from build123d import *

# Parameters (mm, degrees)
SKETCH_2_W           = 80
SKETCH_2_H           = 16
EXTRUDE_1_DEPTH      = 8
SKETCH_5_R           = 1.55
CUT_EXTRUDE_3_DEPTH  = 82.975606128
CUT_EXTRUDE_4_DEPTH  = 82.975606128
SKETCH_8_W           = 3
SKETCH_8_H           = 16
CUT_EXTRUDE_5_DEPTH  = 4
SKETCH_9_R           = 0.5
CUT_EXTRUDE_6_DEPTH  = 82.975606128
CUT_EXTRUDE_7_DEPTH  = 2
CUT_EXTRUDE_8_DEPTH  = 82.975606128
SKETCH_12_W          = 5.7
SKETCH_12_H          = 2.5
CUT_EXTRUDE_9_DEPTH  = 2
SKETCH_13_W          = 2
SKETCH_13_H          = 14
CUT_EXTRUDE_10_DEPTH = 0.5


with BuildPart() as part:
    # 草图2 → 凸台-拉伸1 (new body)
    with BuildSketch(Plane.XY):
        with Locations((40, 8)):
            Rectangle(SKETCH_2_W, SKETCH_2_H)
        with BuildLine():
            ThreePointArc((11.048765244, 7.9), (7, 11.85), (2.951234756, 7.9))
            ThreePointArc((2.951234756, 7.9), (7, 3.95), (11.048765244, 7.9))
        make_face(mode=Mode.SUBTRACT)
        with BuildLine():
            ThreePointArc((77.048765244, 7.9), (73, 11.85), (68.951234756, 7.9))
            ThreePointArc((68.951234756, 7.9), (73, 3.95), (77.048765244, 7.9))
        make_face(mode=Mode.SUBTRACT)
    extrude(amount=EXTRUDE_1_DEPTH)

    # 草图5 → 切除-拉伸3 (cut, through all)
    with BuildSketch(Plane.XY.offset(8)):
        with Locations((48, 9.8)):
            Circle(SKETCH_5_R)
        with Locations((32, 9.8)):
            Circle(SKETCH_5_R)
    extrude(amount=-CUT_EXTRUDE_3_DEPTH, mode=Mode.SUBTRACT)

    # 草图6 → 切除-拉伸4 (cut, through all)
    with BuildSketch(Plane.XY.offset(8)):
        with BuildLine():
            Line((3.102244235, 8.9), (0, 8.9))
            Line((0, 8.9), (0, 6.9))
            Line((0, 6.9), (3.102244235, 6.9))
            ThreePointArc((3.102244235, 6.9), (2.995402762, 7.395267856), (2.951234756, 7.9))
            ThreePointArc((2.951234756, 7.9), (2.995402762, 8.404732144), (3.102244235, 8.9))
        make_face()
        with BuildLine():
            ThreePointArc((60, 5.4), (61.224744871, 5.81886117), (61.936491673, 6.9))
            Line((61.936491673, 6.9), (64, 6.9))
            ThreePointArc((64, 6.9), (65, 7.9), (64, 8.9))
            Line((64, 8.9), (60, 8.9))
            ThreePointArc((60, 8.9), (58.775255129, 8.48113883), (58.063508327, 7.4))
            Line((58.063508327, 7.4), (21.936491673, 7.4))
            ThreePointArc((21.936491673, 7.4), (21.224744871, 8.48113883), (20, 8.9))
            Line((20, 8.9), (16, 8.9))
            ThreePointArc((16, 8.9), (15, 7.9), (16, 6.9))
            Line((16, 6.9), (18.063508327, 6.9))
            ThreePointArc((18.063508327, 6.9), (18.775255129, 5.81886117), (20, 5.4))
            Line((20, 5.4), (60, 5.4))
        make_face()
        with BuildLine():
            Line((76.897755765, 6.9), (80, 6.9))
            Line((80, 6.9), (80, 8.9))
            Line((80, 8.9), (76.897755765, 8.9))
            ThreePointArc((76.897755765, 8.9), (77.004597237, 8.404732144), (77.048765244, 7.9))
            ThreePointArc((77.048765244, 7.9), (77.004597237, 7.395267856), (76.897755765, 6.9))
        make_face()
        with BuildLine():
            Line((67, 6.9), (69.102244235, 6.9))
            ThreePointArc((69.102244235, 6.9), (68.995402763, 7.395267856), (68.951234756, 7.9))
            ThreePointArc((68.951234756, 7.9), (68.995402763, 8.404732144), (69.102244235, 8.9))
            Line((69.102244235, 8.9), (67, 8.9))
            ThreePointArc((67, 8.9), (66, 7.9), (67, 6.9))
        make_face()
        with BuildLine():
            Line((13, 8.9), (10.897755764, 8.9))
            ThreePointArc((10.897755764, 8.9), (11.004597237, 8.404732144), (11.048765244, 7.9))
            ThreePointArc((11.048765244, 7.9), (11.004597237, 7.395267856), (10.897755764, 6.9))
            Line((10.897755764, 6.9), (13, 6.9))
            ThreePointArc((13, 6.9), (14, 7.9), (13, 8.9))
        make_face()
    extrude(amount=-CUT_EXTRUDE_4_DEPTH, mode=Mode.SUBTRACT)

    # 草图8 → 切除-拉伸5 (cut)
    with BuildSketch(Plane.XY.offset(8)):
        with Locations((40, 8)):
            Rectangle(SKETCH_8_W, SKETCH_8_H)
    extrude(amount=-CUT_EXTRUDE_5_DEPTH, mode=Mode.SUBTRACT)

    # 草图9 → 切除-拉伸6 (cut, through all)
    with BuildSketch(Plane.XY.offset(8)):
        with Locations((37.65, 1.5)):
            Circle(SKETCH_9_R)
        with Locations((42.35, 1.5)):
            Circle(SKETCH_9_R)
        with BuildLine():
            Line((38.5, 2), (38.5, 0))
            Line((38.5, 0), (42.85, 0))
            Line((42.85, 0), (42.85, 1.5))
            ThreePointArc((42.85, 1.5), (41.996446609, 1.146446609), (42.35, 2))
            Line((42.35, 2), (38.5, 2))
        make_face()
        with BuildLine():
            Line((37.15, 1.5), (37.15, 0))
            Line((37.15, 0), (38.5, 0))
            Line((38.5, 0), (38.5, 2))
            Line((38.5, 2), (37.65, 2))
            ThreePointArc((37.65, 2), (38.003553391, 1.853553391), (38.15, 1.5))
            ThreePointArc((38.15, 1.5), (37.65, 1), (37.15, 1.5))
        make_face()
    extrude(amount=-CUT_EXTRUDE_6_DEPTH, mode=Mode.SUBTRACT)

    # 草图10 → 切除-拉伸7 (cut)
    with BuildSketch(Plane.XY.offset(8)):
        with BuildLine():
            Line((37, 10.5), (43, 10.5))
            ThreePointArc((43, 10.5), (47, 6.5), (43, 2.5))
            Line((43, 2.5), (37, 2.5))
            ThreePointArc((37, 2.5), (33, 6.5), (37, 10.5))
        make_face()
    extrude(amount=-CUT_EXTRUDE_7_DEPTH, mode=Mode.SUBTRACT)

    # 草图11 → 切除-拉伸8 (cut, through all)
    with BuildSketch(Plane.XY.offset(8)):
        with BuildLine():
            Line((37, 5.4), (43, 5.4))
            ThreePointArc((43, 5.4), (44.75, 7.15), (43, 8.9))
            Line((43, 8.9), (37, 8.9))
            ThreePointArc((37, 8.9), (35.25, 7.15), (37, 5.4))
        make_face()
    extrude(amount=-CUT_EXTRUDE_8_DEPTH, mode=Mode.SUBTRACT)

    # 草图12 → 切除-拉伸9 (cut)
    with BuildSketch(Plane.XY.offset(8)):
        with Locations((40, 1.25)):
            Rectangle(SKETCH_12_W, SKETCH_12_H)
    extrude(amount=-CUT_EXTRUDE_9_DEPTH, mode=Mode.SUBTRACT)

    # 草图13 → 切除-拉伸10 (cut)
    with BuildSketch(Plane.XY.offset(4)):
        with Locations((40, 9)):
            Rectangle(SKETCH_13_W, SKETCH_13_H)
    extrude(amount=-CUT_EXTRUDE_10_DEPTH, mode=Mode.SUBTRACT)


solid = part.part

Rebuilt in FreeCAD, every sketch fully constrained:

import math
import FreeCAD as App
import Part
import Sketcher
from FreeCAD import Vector

doc = App.newDocument("Part")
params = doc.addObject("Spreadsheet::Sheet", "Params")
for row, (alias, value) in enumerate([
    ("sketch1_width", "80 mm"),
    ("sketch1_height", "16 mm"),
    ("sketch1_radius", "4.05 mm"),
    ("pad1_length", "8 mm"),
    ("sketch2_diameter", "3.1 mm"),
    ("sketch3_radius", "2 mm"),
    ("sketch3_width", "4 mm"),
    ("sketch3_width2", "40 mm"),
    ("sketch3_radius2", "4.05 mm"),
    ("sketch4_width", "3 mm"),
    ("sketch4_height", "16 mm"),
    ("pocket3_length", "4 mm"),
    ("sketch5_radius", "0.5 mm"),
    ("sketch5_width", "5.7 mm"),
    ("sketch5_height", "1.5 mm"),
    ("sketch6_radius", "4 mm"),
    ("sketch6_width", "6 mm"),
    ("pocket5_length", "2 mm"),
    ("sketch7_width", "6 mm"),
    ("sketch7_radius", "1.75 mm"),
    ("sketch8_width", "5.7 mm"),
    ("sketch8_height", "2.5 mm"),
    ("pocket7_length", "2 mm"),
    ("sketch9_width", "2 mm"),
    ("sketch9_height", "14 mm"),
    ("pocket8_length", "0.5 mm"),
], start=1):
    params.set(f"A{row}", alias)
    params.set(f"B{row}", "=" + value)
    params.setAlias(f"B{row}", alias)

body = doc.addObject("PartDesign::Body", "Body")

sketch1 = body.newObject("Sketcher::SketchObject", "Sketch")
sketch1.AttachmentSupport = (doc.getObject("XY_Plane"), [""])
sketch1.MapMode = "FlatFace"
sketch1.addGeometry([
    Part.LineSegment(Vector(0, 16, 0), Vector(0, 0, 0)),
    Part.LineSegment(Vector(0, 0, 0), Vector(80, 0, 0)),
    Part.LineSegment(Vector(80, 0, 0), Vector(80, 16, 0)),
    Part.LineSegment(Vector(80, 16, 0), Vector(0, 16, 0)),
    Part.ArcOfCircle(Part.Circle(Vector(7, 7.8, 0), Vector(0, 0, 1), 4), math.radians(1), math.radians(179)),
    Part.ArcOfCircle(Part.Circle(Vector(7, 8, 0), Vector(0, 0, 1), 4), math.radians(-179), math.radians(-1)),
    Part.ArcOfCircle(Part.Circle(Vector(73, 7.8, 0), Vector(0, 0, 1), 4), math.radians(1), math.radians(179)),
    Part.ArcOfCircle(Part.Circle(Vector(73, 8, 0), Vector(0, 0, 1), 4), math.radians(-179), math.radians(-1)),
], False)
sketch1.addConstraint([
    Sketcher.Constraint("Coincident", 0, 2, 1, 1),
    Sketcher.Constraint("Coincident", 1, 2, 2, 1),
    Sketcher.Constraint("Coincident", 2, 2, 3, 1),
    Sketcher.Constraint("Coincident", 3, 2, 0, 1),
    Sketcher.Constraint("Coincident", 4, 1, 5, 2),
    Sketcher.Constraint("Coincident", 5, 1, 4, 2),
    Sketcher.Constraint("Coincident", 6, 1, 7, 2),
    Sketcher.Constraint("Coincident", 7, 1, 6, 2),
    Sketcher.Constraint("Vertical", 0),
    Sketcher.Constraint("Horizontal", 1),
    Sketcher.Constraint("Vertical", 2),
    Sketcher.Constraint("Horizontal", 3),
    Sketcher.Constraint("Coincident", 0, 2, -1, 1),
    Sketcher.Constraint("Equal", 4, 5),
    Sketcher.Constraint("Equal", 5, 6),
    Sketcher.Constraint("Equal", 6, 7),
    Sketcher.Constraint("Horizontal", 4, 3, 6, 3),
    Sketcher.Constraint("Horizontal", 5, 3, 7, 3),
    Sketcher.Constraint("Horizontal", 4, 1, 5, 1),
    Sketcher.Constraint("Horizontal", 5, 1, 6, 1),
    Sketcher.Constraint("DistanceX", 1, 1, 1, 2, 80.0),
    Sketcher.Constraint("DistanceY", 0, 2, 0, 1, 16.0),
    Sketcher.Constraint("Radius", 4, 4.05),
    Sketcher.Constraint("DistanceX", -1, 1, 4, 3, 7.0),
    Sketcher.Constraint("DistanceY", -1, 1, 5, 3, 8.0),
    Sketcher.Constraint("DistanceX", -1, 1, 6, 3, 73.0),
    Sketcher.Constraint("DistanceY", -1, 1, 4, 3, 7.8),
])
sketch1.setExpression("Constraints[20]", "Params.sketch1_width")
sketch1.setExpression("Constraints[21]", "Params.sketch1_height")
sketch1.setExpression("Constraints[22]", "Params.sketch1_radius")
pad1 = body.newObject("PartDesign::Pad", "Pad")
pad1.Profile = sketch1
pad1.setExpression("Length", "Params.pad1_length")

sketch2 = body.newObject("Sketcher::SketchObject", "Sketch001")
sketch2.AttachmentSupport = (doc.getObject("XY_Plane"), [""])
sketch2.MapMode = "FlatFace"
sketch2.AttachmentOffset = App.Placement(Vector(0, 0, 8), App.Rotation())
sketch2.addGeometry([
    Part.Circle(Vector(48, 9.8, 0), Vector(0, 0, 1), 1.6),
    Part.Circle(Vector(32, 9.8, 0), Vector(0, 0, 1), 1.6),
], False)
sketch2.addConstraint([
    Sketcher.Constraint("Equal", 0, 1),
    Sketcher.Constraint("Horizontal", 0, 3, 1, 3),
    Sketcher.Constraint("Diameter", 0, 3.1),
    Sketcher.Constraint("DistanceX", -1, 1, 0, 3, 48.0),
    Sketcher.Constraint("DistanceX", -1, 1, 1, 3, 32.0),
    Sketcher.Constraint("DistanceY", -1, 1, 0, 3, 9.8),
])
sketch2.setExpression("Constraints[2]", "Params.sketch2_diameter")
pocket1 = body.newObject("PartDesign::Pocket", "Pocket")
pocket1.Profile = sketch2
pocket1.Type = "ThroughAll"

sketch3 = body.newObject("Sketcher::SketchObject", "Sketch002")
sketch3.AttachmentSupport = (doc.getObject("XY_Plane"), [""])
sketch3.MapMode = "FlatFace"
sketch3.AttachmentOffset = App.Placement(Vector(0, 0, 8), App.Rotation())
sketch3.addGeometry([
    Part.LineSegment(Vector(3.1, 8.9, 0), Vector(0, 8.9, 0)),
    Part.LineSegment(Vector(0, 8.9, 0), Vector(0, 6.9, 0)),
    Part.LineSegment(Vector(0, 6.9, 0), Vector(3.1, 6.9, 0)),
    Part.ArcOfCircle(Part.Circle(Vector(7, 8, 0), Vector(0, 0, 1), 4), math.radians(-178.59), math.radians(-164.24)),
    Part.ArcOfCircle(Part.Circle(Vector(7, 7.8, 0), Vector(0, 0, 1), 4), math.radians(164.24), math.radians(178.59)),
    Part.ArcOfCircle(Part.Circle(Vector(60, 7.4, 0), Vector(0, 0, 1), 2), math.radians(-90), math.radians(-14)),
    Part.LineSegment(Vector(61.9, 6.9, 0), Vector(64, 6.9, 0)),
    Part.ArcOfCircle(Part.Circle(Vector(64, 7.9, 0), Vector(0, 0, 1), 1), math.radians(-90), math.radians(90)),
    Part.LineSegment(Vector(64, 8.9, 0), Vector(60, 8.9, 0)),
    Part.ArcOfCircle(Part.Circle(Vector(60, 6.9, 0), Vector(0, 0, 1), 2), math.radians(90), math.radians(166)),
    Part.LineSegment(Vector(58.1, 7.4, 0), Vector(21.9, 7.4, 0)),
    Part.ArcOfCircle(Part.Circle(Vector(20, 6.9, 0), Vector(0, 0, 1), 2), math.radians(14), math.radians(90)),
    Part.LineSegment(Vector(20, 8.9, 0), Vector(16, 8.9, 0)),
    Part.ArcOfCircle(Part.Circle(Vector(16, 7.9, 0), Vector(0, 0, 1), 1), math.radians(90), math.radians(270)),
    Part.LineSegment(Vector(16, 6.9, 0), Vector(18.1, 6.9, 0)),
    Part.ArcOfCircle(Part.Circle(Vector(20, 7.4, 0), Vector(0, 0, 1), 2), math.radians(-166), math.radians(-90)),
    Part.LineSegment(Vector(20, 5.4, 0), Vector(60, 5.4, 0)),
    Part.LineSegment(Vector(76.9, 6.9, 0), Vector(80, 6.9, 0)),
    Part.LineSegment(Vector(80, 6.9, 0), Vector(80, 8.9, 0)),
    Part.LineSegment(Vector(80, 8.9, 0), Vector(76.9, 8.9, 0)),
    Part.ArcOfCircle(Part.Circle(Vector(73, 7.8, 0), Vector(0, 0, 1), 4.1), math.radians(1.41), math.radians(15.76)),
    Part.ArcOfCircle(Part.Circle(Vector(73, 8, 0), Vector(0, 0, 1), 4.1), math.radians(-15.76), math.radians(-1.41)),
    Part.LineSegment(Vector(67, 6.9, 0), Vector(69.1, 6.9, 0)),
    Part.ArcOfCircle(Part.Circle(Vector(73, 8, 0), Vector(0, 0, 1), 4.1), math.radians(-178.59), math.radians(-164.24)),
    Part.ArcOfCircle(Part.Circle(Vector(73, 7.8, 0), Vector(0, 0, 1), 4.1), math.radians(164.24), math.radians(178.59)),
    Part.LineSegment(Vector(69.1, 8.9, 0), Vector(67, 8.9, 0)),
    Part.ArcOfCircle(Part.Circle(Vector(67, 7.9, 0), Vector(0, 0, 1), 1), math.radians(90), math.radians(270)),
    Part.LineSegment(Vector(13, 8.9, 0), Vector(10.9, 8.9, 0)),
    Part.ArcOfCircle(Part.Circle(Vector(7, 7.8, 0), Vector(0, 0, 1), 4.1), math.radians(1.41), math.radians(15.76)),
    Part.ArcOfCircle(Part.Circle(Vector(7, 8, 0), Vector(0, 0, 1), 4.1), math.radians(-15.76), math.radians(-1.41)),
    Part.LineSegment(Vector(10.9, 6.9, 0), Vector(13, 6.9, 0)),
    Part.ArcOfCircle(Part.Circle(Vector(13, 7.9, 0), Vector(0, 0, 1), 1), math.radians(-90), math.radians(90)),
], False)
sketch3.addConstraint([
    Sketcher.Constraint("Coincident", 0, 2, 1, 1),
    Sketcher.Constraint("Coincident", 1, 2, 2, 1),
    Sketcher.Constraint("Coincident", 2, 2, 3, 2),
    Sketcher.Constraint("Coincident", 3, 1, 4, 2),
    Sketcher.Constraint("Coincident", 4, 1, 0, 1),
    Sketcher.Constraint("Coincident", 5, 2, 6, 1),
    Sketcher.Constraint("Tangent", 6, 2, 7, 1),
    Sketcher.Constraint("Tangent", 7, 2, 8, 1),
    Sketcher.Constraint("Tangent", 8, 2, 9, 1),
    Sketcher.Constraint("Coincident", 9, 2, 10, 1),
    Sketcher.Constraint("Coincident", 10, 2, 11, 1),
    Sketcher.Constraint("Tangent", 11, 2, 12, 1),
    Sketcher.Constraint("Tangent", 12, 2, 13, 1),
    Sketcher.Constraint("Tangent", 13, 2, 14, 1),
    Sketcher.Constraint("Coincident", 14, 2, 15, 1),
    Sketcher.Constraint("Tangent", 15, 2, 16, 1),
    Sketcher.Constraint("Tangent", 16, 2, 5, 1),
    Sketcher.Constraint("Coincident", 17, 2, 18, 1),
    Sketcher.Constraint("Coincident", 18, 2, 19, 1),
    Sketcher.Constraint("Coincident", 19, 2, 20, 2),
    Sketcher.Constraint("Coincident", 20, 1, 21, 2),
    Sketcher.Constraint("Coincident", 21, 1, 17, 1),
    Sketcher.Constraint("Coincident", 22, 2, 23, 2),
    Sketcher.Constraint("Coincident", 23, 1, 24, 2),
    Sketcher.Constraint("Coincident", 24, 1, 25, 1),
    Sketcher.Constraint("Tangent", 25, 2, 26, 1),
    Sketcher.Constraint("Tangent", 26, 2, 22, 1),
    Sketcher.Constraint("Coincident", 27, 2, 28, 2),
    Sketcher.Constraint("Coincident", 28, 1, 29, 2),
    Sketcher.Constraint("Coincident", 29, 1, 30, 1),
    Sketcher.Constraint("Tangent", 30, 2, 31, 1),
    Sketcher.Constraint("Tangent", 31, 2, 27, 1),
    Sketcher.Constraint("Horizontal", 0),
    Sketcher.Constraint("Vertical", 1),
    Sketcher.Constraint("Horizontal", 2),
    Sketcher.Constraint("Horizontal", 6),
    Sketcher.Constraint("Horizontal", 8),
    Sketcher.Constraint("Horizontal", 10),
    Sketcher.Constraint("Horizontal", 12),
    Sketcher.Constraint("Horizontal", 14),
    Sketcher.Constraint("Horizontal", 16),
    Sketcher.Constraint("Horizontal", 17),
    Sketcher.Constraint("Vertical", 18),
    Sketcher.Constraint("Horizontal", 19),
    Sketcher.Constraint("Horizontal", 22),
    Sketcher.Constraint("Horizontal", 25),
    Sketcher.Constraint("Horizontal", 27),
    Sketcher.Constraint("Horizontal", 30),
    Sketcher.Constraint("Coincident", 23, 3, 21, 3),
    Sketcher.Constraint("Coincident", 24, 3, 20, 3),
    Sketcher.Constraint("Coincident", 28, 3, 4, 3),
    Sketcher.Constraint("Coincident", 29, 3, 3, 3),
    Sketcher.Constraint("Equal", 3, 4),
    Sketcher.Constraint("Equal", 5, 9),
    Sketcher.Constraint("Equal", 9, 11),
    Sketcher.Constraint("Equal", 7, 13),
    Sketcher.Constraint("Equal", 11, 15),
    Sketcher.Constraint("Equal", 4, 20),
    Sketcher.Constraint("Equal", 20, 21),
    Sketcher.Constraint("Equal", 21, 23),
    Sketcher.Constraint("Equal", 23, 24),
    Sketcher.Constraint("Equal", 13, 26),
    Sketcher.Constraint("Equal", 24, 28),
    Sketcher.Constraint("Equal", 28, 29),
    Sketcher.Constraint("Equal", 26, 31),
    Sketcher.Constraint("PointOnObject", 0, 2, -2),
    Sketcher.Constraint("Horizontal", 9, 3, 11, 3),
    Sketcher.Constraint("Horizontal", 4, 3, 20, 3),
    Sketcher.Constraint("Horizontal", 3, 3, 21, 3),
    Sketcher.Constraint("Horizontal", 13, 3, 26, 3),
    Sketcher.Constraint("Horizontal", 26, 3, 31, 3),
    Sketcher.Constraint("Horizontal", 11, 3, 1, 2),
    Sketcher.Constraint("Horizontal", 31, 3, 3, 1),
    Sketcher.Constraint("Horizontal", 2, 2, 5, 2),
    Sketcher.Constraint("Horizontal", 4, 1, 7, 2),
    Sketcher.Constraint("Horizontal", 15, 3, 9, 2),
    Sketcher.Constraint("Horizontal", 14, 2, 17, 2),
    Sketcher.Constraint("Horizontal", 12, 2, 18, 2),
    Sketcher.Constraint("Horizontal", 3, 1, 20, 1),
    Sketcher.Constraint("Horizontal", 20, 1, 23, 1),
    Sketcher.Constraint("Vertical", 5, 3, 9, 3),
    Sketcher.Constraint("Vertical", 11, 3, 15, 3),
    Sketcher.Constraint("Equal", 8, 12),
    Sketcher.Constraint("Equal", 2, 17),
    Sketcher.Constraint("Equal", 25, 27),
    Sketcher.Constraint("Radius", 5, 2.0),
    Sketcher.Constraint("DistanceX", 8, 2, 8, 1, 4.0),
    Sketcher.Constraint("DistanceX", 16, 1, 16, 2, 40.0),
    Sketcher.Constraint("Radius", 3, 4.05),
    Sketcher.Constraint("DistanceX", -1, 1, 3, 3, 7.0),
    Sketcher.Constraint("DistanceY", -1, 1, 3, 3, 8.0),
    Sketcher.Constraint("DistanceX", -1, 1, 5, 3, 60.0),
    Sketcher.Constraint("DistanceX", -1, 1, 20, 3, 73.0),
    Sketcher.Constraint("DistanceX", -1, 1, 26, 3, 67.0),
    Sketcher.Constraint("DistanceY", -1, 1, 4, 3, 7.8),
    Sketcher.Constraint("DistanceY", -1, 1, 5, 3, 7.4),
])
sketch3.setExpression("Constraints[85]", "Params.sketch3_radius")
sketch3.setExpression("Constraints[86]", "Params.sketch3_width")
sketch3.setExpression("Constraints[87]", "Params.sketch3_width2")
sketch3.setExpression("Constraints[88]", "Params.sketch3_radius2")
pocket2 = body.newObject("PartDesign::Pocket", "Pocket001")
pocket2.Profile = sketch3
pocket2.Type = "ThroughAll"

sketch4 = body.newObject("Sketcher::SketchObject", "Sketch003")
sketch4.AttachmentSupport = (doc.getObject("XY_Plane"), [""])
sketch4.MapMode = "FlatFace"
sketch4.AttachmentOffset = App.Placement(Vector(0, 0, 8), App.Rotation())
sketch4.addGeometry([
    Part.LineSegment(Vector(38.5, 16, 0), Vector(38.5, 0, 0)),
    Part.LineSegment(Vector(38.5, 0, 0), Vector(41.5, 0, 0)),
    Part.LineSegment(Vector(41.5, 0, 0), Vector(41.5, 16, 0)),
    Part.LineSegment(Vector(41.5, 16, 0), Vector(38.5, 16, 0)),
], False)
sketch4.addConstraint([
    Sketcher.Constraint("Coincident", 0, 2, 1, 1),
    Sketcher.Constraint("Coincident", 1, 2, 2, 1),
    Sketcher.Constraint("Coincident", 2, 2, 3, 1),
    Sketcher.Constraint("Coincident", 3, 2, 0, 1),
    Sketcher.Constraint("Vertical", 0),
    Sketcher.Constraint("Horizontal", 1),
    Sketcher.Constraint("Vertical", 2),
    Sketcher.Constraint("Horizontal", 3),
    Sketcher.Constraint("PointOnObject", 0, 2, -1),
    Sketcher.Constraint("DistanceX", 1, 1, 1, 2, 3.0),
    Sketcher.Constraint("DistanceY", 0, 2, 0, 1, 16.0),
    Sketcher.Constraint("DistanceX", -1, 1, 0, 2, 38.5),
])
sketch4.setExpression("Constraints[9]", "Params.sketch4_width")
sketch4.setExpression("Constraints[10]", "Params.sketch4_height")
pocket3 = body.newObject("PartDesign::Pocket", "Pocket002")
pocket3.Profile = sketch4
pocket3.setExpression("Length", "Params.pocket3_length")

sketch5 = body.newObject("Sketcher::SketchObject", "Sketch004")
sketch5.AttachmentSupport = (doc.getObject("XY_Plane"), [""])
sketch5.MapMode = "FlatFace"
sketch5.AttachmentOffset = App.Placement(Vector(0, 0, 8), App.Rotation())
sketch5.addGeometry([
    Part.ArcOfCircle(Part.Circle(Vector(37.6, 1.5, 0), Vector(0, 0, 1), 0.5), math.radians(90), math.radians(180)),
    Part.LineSegment(Vector(37.1, 1.5, 0), Vector(37.1, 0, 0)),
    Part.LineSegment(Vector(37.1, 0, 0), Vector(42.9, 0, 0)),
    Part.LineSegment(Vector(42.9, 0, 0), Vector(42.9, 1.5, 0)),
    Part.ArcOfCircle(Part.Circle(Vector(42.4, 1.5, 0), Vector(0, 0, 1), 0.5), math.radians(0), math.radians(90)),
    Part.LineSegment(Vector(42.4, 2, 0), Vector(37.6, 2, 0)),
], False)
sketch5.addConstraint([
    Sketcher.Constraint("Tangent", 0, 2, 1, 1),
    Sketcher.Constraint("Coincident", 1, 2, 2, 1),
    Sketcher.Constraint("Coincident", 2, 2, 3, 1),
    Sketcher.Constraint("Tangent", 3, 2, 4, 1),
    Sketcher.Constraint("Tangent", 4, 2, 5, 1),
    Sketcher.Constraint("Tangent", 5, 2, 0, 1),
    Sketcher.Constraint("Vertical", 1),
    Sketcher.Constraint("Horizontal", 2),
    Sketcher.Constraint("Vertical", 3),
    Sketcher.Constraint("Horizontal", 5),
    Sketcher.Constraint("Equal", 0, 4),
    Sketcher.Constraint("PointOnObject", 1, 2, -1),
    Sketcher.Constraint("Radius", 0, 0.5),
    Sketcher.Constraint("DistanceX", 2, 1, 2, 2, 5.7),
    Sketcher.Constraint("DistanceY", 1, 2, 1, 1, 1.5),
    Sketcher.Constraint("DistanceX", -1, 1, 0, 3, 37.65),
])
sketch5.setExpression("Constraints[12]", "Params.sketch5_radius")
sketch5.setExpression("Constraints[13]", "Params.sketch5_width")
sketch5.setExpression("Constraints[14]", "Params.sketch5_height")
pocket4 = body.newObject("PartDesign::Pocket", "Pocket003")
pocket4.Profile = sketch5
pocket4.Type = "ThroughAll"

sketch6 = body.newObject("Sketcher::SketchObject", "Sketch005")
sketch6.AttachmentSupport = (doc.getObject("XY_Plane"), [""])
sketch6.MapMode = "FlatFace"
sketch6.AttachmentOffset = App.Placement(Vector(0, 0, 8), App.Rotation())
sketch6.addGeometry([
    Part.LineSegment(Vector(43, 10.5, 0), Vector(37, 10.5, 0)),
    Part.ArcOfCircle(Part.Circle(Vector(37, 6.5, 0), Vector(0, 0, 1), 4), math.radians(90), math.radians(270)),
    Part.LineSegment(Vector(37, 2.5, 0), Vector(43, 2.5, 0)),
    Part.ArcOfCircle(Part.Circle(Vector(43, 6.5, 0), Vector(0, 0, 1), 4), math.radians(-90), math.radians(90)),
], False)
sketch6.addConstraint([
    Sketcher.Constraint("Tangent", 0, 2, 1, 1),
    Sketcher.Constraint("Tangent", 1, 2, 2, 1),
    Sketcher.Constraint("Tangent", 2, 2, 3, 1),
    Sketcher.Constraint("Tangent", 3, 2, 0, 1),
    Sketcher.Constraint("Horizontal", 0),
    Sketcher.Constraint("Horizontal", 2),
    Sketcher.Constraint("Radius", 1, 4.0),
    Sketcher.Constraint("DistanceX", 0, 2, 0, 1, 6.0),
    Sketcher.Constraint("DistanceX", -1, 1, 1, 3, 37.0),
    Sketcher.Constraint("DistanceY", -1, 1, 1, 3, 6.5),
])
sketch6.setExpression("Constraints[6]", "Params.sketch6_radius")
sketch6.setExpression("Constraints[7]", "Params.sketch6_width")
pocket5 = body.newObject("PartDesign::Pocket", "Pocket004")
pocket5.Profile = sketch6
pocket5.setExpression("Length", "Params.pocket5_length")

sketch7 = body.newObject("Sketcher::SketchObject", "Sketch006")
sketch7.AttachmentSupport = (doc.getObject("XY_Plane"), [""])
sketch7.MapMode = "FlatFace"
sketch7.AttachmentOffset = App.Placement(Vector(0, 0, 8), App.Rotation())
sketch7.addGeometry([
    Part.LineSegment(Vector(37, 5.4, 0), Vector(43, 5.4, 0)),
    Part.ArcOfCircle(Part.Circle(Vector(43, 7.2, 0), Vector(0, 0, 1), 1.8), math.radians(-90), math.radians(90)),
    Part.LineSegment(Vector(43, 8.9, 0), Vector(37, 8.9, 0)),
    Part.ArcOfCircle(Part.Circle(Vector(37, 7.2, 0), Vector(0, 0, 1), 1.8), math.radians(90), math.radians(270)),
], False)
sketch7.addConstraint([
    Sketcher.Constraint("Tangent", 0, 2, 1, 1),
    Sketcher.Constraint("Tangent", 1, 2, 2, 1),
    Sketcher.Constraint("Tangent", 2, 2, 3, 1),
    Sketcher.Constraint("Tangent", 3, 2, 0, 1),
    Sketcher.Constraint("Horizontal", 0),
    Sketcher.Constraint("Horizontal", 2),
    Sketcher.Constraint("DistanceX", 0, 1, 0, 2, 6.0),
    Sketcher.Constraint("Radius", 1, 1.75),
    Sketcher.Constraint("DistanceX", -1, 1, 1, 3, 43.0),
    Sketcher.Constraint("DistanceY", -1, 1, 0, 2, 5.4),
])
sketch7.setExpression("Constraints[6]", "Params.sketch7_width")
sketch7.setExpression("Constraints[7]", "Params.sketch7_radius")
pocket6 = body.newObject("PartDesign::Pocket", "Pocket005")
pocket6.Profile = sketch7
pocket6.Type = "ThroughAll"

sketch8 = body.newObject("Sketcher::SketchObject", "Sketch007")
sketch8.AttachmentSupport = (doc.getObject("XY_Plane"), [""])
sketch8.MapMode = "FlatFace"
sketch8.AttachmentOffset = App.Placement(Vector(0, 0, 8), App.Rotation())
sketch8.addGeometry([
    Part.LineSegment(Vector(37.1, 2.5, 0), Vector(37.1, 0, 0)),
    Part.LineSegment(Vector(37.1, 0, 0), Vector(42.9, 0, 0)),
    Part.LineSegment(Vector(42.9, 0, 0), Vector(42.9, 2.5, 0)),
    Part.LineSegment(Vector(42.9, 2.5, 0), Vector(37.1, 2.5, 0)),
], False)
sketch8.addConstraint([
    Sketcher.Constraint("Coincident", 0, 2, 1, 1),
    Sketcher.Constraint("Coincident", 1, 2, 2, 1),
    Sketcher.Constraint("Coincident", 2, 2, 3, 1),
    Sketcher.Constraint("Coincident", 3, 2, 0, 1),
    Sketcher.Constraint("Vertical", 0),
    Sketcher.Constraint("Horizontal", 1),
    Sketcher.Constraint("Vertical", 2),
    Sketcher.Constraint("Horizontal", 3),
    Sketcher.Constraint("PointOnObject", 0, 2, -1),
    Sketcher.Constraint("DistanceX", 1, 1, 1, 2, 5.7),
    Sketcher.Constraint("DistanceY", 0, 2, 0, 1, 2.5),
    Sketcher.Constraint("DistanceX", -1, 1, 0, 2, 37.15),
])
sketch8.setExpression("Constraints[9]", "Params.sketch8_width")
sketch8.setExpression("Constraints[10]", "Params.sketch8_height")
pocket7 = body.newObject("PartDesign::Pocket", "Pocket006")
pocket7.Profile = sketch8
pocket7.setExpression("Length", "Params.pocket7_length")

sketch9 = body.newObject("Sketcher::SketchObject", "Sketch008")
sketch9.AttachmentSupport = (doc.getObject("XY_Plane"), [""])
sketch9.MapMode = "FlatFace"
sketch9.AttachmentOffset = App.Placement(Vector(0, 0, 4), App.Rotation())
sketch9.addGeometry([
    Part.LineSegment(Vector(39, 16, 0), Vector(39, 2, 0)),
    Part.LineSegment(Vector(39, 2, 0), Vector(41, 2, 0)),
    Part.LineSegment(Vector(41, 2, 0), Vector(41, 16, 0)),
    Part.LineSegment(Vector(41, 16, 0), Vector(39, 16, 0)),
], False)
sketch9.addConstraint([
    Sketcher.Constraint("Coincident", 0, 2, 1, 1),
    Sketcher.Constraint("Coincident", 1, 2, 2, 1),
    Sketcher.Constraint("Coincident", 2, 2, 3, 1),
    Sketcher.Constraint("Coincident", 3, 2, 0, 1),
    Sketcher.Constraint("Vertical", 0),
    Sketcher.Constraint("Horizontal", 1),
    Sketcher.Constraint("Vertical", 2),
    Sketcher.Constraint("Horizontal", 3),
    Sketcher.Constraint("DistanceX", 1, 1, 1, 2, 2.0),
    Sketcher.Constraint("DistanceY", 0, 2, 0, 1, 14.0),
    Sketcher.Constraint("DistanceX", -1, 1, 0, 2, 39.0),
    Sketcher.Constraint("DistanceY", -1, 1, 0, 2, 2.0),
])
sketch9.setExpression("Constraints[8]", "Params.sketch9_width")
sketch9.setExpression("Constraints[9]", "Params.sketch9_height")
pocket8 = body.newObject("PartDesign::Pocket", "Pocket007")
pocket8.Profile = sketch9
pocket8.setExpression("Length", "Params.pocket8_length")

doc.recompute()
